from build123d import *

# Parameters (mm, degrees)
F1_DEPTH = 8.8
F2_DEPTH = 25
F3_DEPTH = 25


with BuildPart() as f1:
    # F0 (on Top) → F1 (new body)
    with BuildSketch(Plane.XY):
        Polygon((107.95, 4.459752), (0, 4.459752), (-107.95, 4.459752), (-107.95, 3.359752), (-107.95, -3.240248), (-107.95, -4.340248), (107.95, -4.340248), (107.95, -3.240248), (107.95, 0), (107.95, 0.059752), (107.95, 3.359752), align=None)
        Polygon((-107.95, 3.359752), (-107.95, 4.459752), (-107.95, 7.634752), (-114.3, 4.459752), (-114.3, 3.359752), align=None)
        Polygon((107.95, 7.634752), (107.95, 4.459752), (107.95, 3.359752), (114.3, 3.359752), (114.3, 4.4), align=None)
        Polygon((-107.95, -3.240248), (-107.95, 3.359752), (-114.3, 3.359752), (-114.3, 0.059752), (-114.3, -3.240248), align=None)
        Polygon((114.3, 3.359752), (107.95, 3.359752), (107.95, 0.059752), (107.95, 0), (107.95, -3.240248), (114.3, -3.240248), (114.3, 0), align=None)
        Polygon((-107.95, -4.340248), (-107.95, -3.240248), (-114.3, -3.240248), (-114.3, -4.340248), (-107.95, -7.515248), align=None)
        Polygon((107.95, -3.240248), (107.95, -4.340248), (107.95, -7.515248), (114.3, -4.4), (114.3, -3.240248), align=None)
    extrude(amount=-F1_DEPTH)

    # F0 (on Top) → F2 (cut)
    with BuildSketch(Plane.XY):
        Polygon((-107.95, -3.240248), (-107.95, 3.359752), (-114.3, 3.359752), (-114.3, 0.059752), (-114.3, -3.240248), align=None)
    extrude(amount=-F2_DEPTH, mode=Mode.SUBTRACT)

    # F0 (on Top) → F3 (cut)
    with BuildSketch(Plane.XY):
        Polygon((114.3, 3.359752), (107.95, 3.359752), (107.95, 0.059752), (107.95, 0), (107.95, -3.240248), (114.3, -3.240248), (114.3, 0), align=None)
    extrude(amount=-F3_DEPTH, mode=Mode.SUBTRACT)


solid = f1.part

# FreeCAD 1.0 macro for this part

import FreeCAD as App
import Part
import Sketcher

V = App.Vector


def add_polygon(sketch, points):
    """Adds a closed chain of lines whose ends are joined by coincident constraints."""
    first, n = sketch.GeometryCount, len(points)
    for a, b in zip(points, points[1:] + points[:1]):
        sketch.addGeometry(Part.LineSegment(App.Vector(*a, 0), App.Vector(*b, 0)), False)
    for i in range(n):
        sketch.addConstraint(Sketcher.Constraint("Coincident", first + i, 2, first + (i + 1) % n, 1))

doc = App.newDocument("Part")
body = doc.addObject("PartDesign::Body", "Body")

# Sketch on XY plane
sketch1 = doc.addObject("Sketcher::SketchObject", "Sketch")
body.addObject(sketch1)
sketch1.AttachmentSupport = (doc.XY_Plane, [""])
sketch1.MapMode = "FlatFace"
add_polygon(sketch1, [(108, 4.5), (-108, 4.5), (-108, 7.6), (-114.3, 4.5), (-114.3, -4.3), (-108, -7.5), (-108, -4.3), (108, -4.3), (108, -7.5), (114.3, -4.4), (114.3, 4.4), (108, 7.6)])  # lines 0-11
sketch1.addConstraint(Sketcher.Constraint("Horizontal", 0))
sketch1.addConstraint(Sketcher.Constraint("Vertical", 1))
sketch1.addConstraint(Sketcher.Constraint("Vertical", 3))
sketch1.addConstraint(Sketcher.Constraint("Vertical", 5))
sketch1.addConstraint(Sketcher.Constraint("Horizontal", 6))
sketch1.addConstraint(Sketcher.Constraint("Vertical", 7))
sketch1.addConstraint(Sketcher.Constraint("Vertical", 9))
sketch1.addConstraint(Sketcher.Constraint("Vertical", 11))
sketch1.addConstraint(Sketcher.Constraint("Symmetric", 4, 2, 7, 2, -2))
sketch1.addConstraint(Sketcher.Constraint("Symmetric", 1, 2, 10, 2, -2))
sketch1.addConstraint(Sketcher.Constraint("Horizontal", 0, 2, 2, 2))
sketch1.addConstraint(Sketcher.Constraint("Horizontal", 3, 2, 5, 2))
sketch1.addConstraint(Sketcher.Constraint("Vertical", 1, 2, 4, 2))
sketch1.addConstraint(Sketcher.Constraint("Equal", 1, 5))
sketch1.addConstraint(Sketcher.Constraint("Equal", 3, 9))
sketch1.addConstraint(Sketcher.Constraint("DistanceX", 0, 2, 0, 1, 215.9))
sketch1.addConstraint(Sketcher.Constraint("DistanceY", 3, 2, 3, 1, 8.8))
sketch1.addConstraint(Sketcher.Constraint("DistanceX", 2, 2, -1, 1, 114.3))
sketch1.addConstraint(Sketcher.Constraint("DistanceX", -1, 1, 8, 2, 114.3))
sketch1.addConstraint(Sketcher.Constraint("DistanceY", 8, 2, -1, 1, 4.4))
sketch1.addConstraint(Sketcher.Constraint("DistanceY", 1, 1, 1, 2, 3.175))
sketch1.addConstraint(Sketcher.Constraint("Distance", 10, 7.126438))
pad1 = doc.addObject("PartDesign::Pad", "Pad")
body.addObject(pad1)
pad1.Profile = sketch1
pad1.Length = 8.8
pad1.Reversed = True

# Sketch on XY plane
sketch2 = doc.addObject("Sketcher::SketchObject", "Sketch001")
body.addObject(sketch2)
sketch2.AttachmentSupport = (doc.XY_Plane, [""])
sketch2.MapMode = "FlatFace"
add_polygon(sketch2, [(-108, -3), (-108, 3), (-114, 3), (-114, -3)])  # lines 0-3
sketch2.addConstraint(Sketcher.Constraint("Vertical", 0))
sketch2.addConstraint(Sketcher.Constraint("Horizontal", 1))
sketch2.addConstraint(Sketcher.Constraint("Vertical", 2))
sketch2.addConstraint(Sketcher.Constraint("Horizontal", 3))
sketch2.addConstraint(Sketcher.Constraint("DistanceY", 0, 1, 0, 2, 6.6))
sketch2.addConstraint(Sketcher.Constraint("DistanceX", 1, 2, 1, 1, 6.35))
sketch2.addConstraint(Sketcher.Constraint("DistanceX", 1, 2, -1, 1, 114.3))
sketch2.addConstraint(Sketcher.Constraint("DistanceY", -1, 1, 0, 2, 3.359752))
pocket1 = doc.addObject("PartDesign::Pocket", "Pocket")
body.addObject(pocket1)
pocket1.Profile = sketch2
pocket1.Length = 25

# Sketch on XY plane
sketch3 = doc.addObject("Sketcher::SketchObject", "Sketch002")
body.addObject(sketch3)
sketch3.AttachmentSupport = (doc.XY_Plane, [""])
sketch3.MapMode = "FlatFace"
add_polygon(sketch3, [(114, 3), (108, 3), (108, -3), (114, -3)])  # lines 0-3
sketch3.addConstraint(Sketcher.Constraint("Horizontal", 0))
sketch3.addConstraint(Sketcher.Constraint("Vertical", 1))
sketch3.addConstraint(Sketcher.Constraint("Horizontal", 2))
sketch3.addConstraint(Sketcher.Constraint("Vertical", 3))
sketch3.addConstraint(Sketcher.Constraint("DistanceY", 1, 2, 1, 1, 6.6))
sketch3.addConstraint(Sketcher.Constraint("DistanceX", 0, 2, 0, 1, 6.35))
sketch3.addConstraint(Sketcher.Constraint("DistanceX", -1, 1, 2, 2, 114.3))
sketch3.addConstraint(Sketcher.Constraint("DistanceY", -1, 1, 0, 2, 3.359752))
pocket2 = doc.addObject("PartDesign::Pocket", "Pocket001")
body.addObject(pocket2)
pocket2.Profile = sketch3
pocket2.Length = 25

doc.recompute()
